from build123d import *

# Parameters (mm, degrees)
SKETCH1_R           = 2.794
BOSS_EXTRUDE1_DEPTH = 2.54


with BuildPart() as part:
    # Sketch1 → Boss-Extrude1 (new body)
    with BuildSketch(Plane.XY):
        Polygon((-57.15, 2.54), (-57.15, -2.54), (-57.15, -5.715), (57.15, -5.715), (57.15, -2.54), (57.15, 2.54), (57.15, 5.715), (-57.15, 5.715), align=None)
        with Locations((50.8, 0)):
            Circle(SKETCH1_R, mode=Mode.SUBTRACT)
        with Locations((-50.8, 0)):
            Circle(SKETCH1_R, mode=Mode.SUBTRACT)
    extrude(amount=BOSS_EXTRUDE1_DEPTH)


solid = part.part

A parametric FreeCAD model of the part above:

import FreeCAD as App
import Part
import Sketcher

V = App.Vector
Q = App.Units.Quantity


def add_polygon(sketch, points):
    """Adds a closed chain of lines whose ends are joined by coincident constraints."""
    first, n = sketch.GeometryCount, len(points)
    for a, b in zip(points, points[1:] + points[:1]):
        sketch.addGeometry(Part.LineSegment(App.Vector(*a, 0), App.Vector(*b, 0)), False)
    for i in range(n):
        sketch.addConstraint(Sketcher.Constraint("Coincident", first + i, 2, first + (i + 1) % n, 1))

doc = App.newDocument("Part")
body = doc.addObject("PartDesign::Body", "Body")

sketch1 = body.newObject("Sketcher::SketchObject", "Sketch")
sketch1.AttachmentSupport = (doc.getObject("XY_Plane"), [""])
sketch1.MapMode = "FlatFace"
add_polygon(sketch1, [(-57.1, -5.7), (57.1, -5.7), (57.1, 5.7), (-57.1, 5.7)])
sketch1.addGeometry(Part.Circle(V(-50.8, 0, 0), V(0, 0, 1), 2.8), False)
sketch1.addGeometry(Part.Circle(V(50.8, 0, 0), V(0, 0, 1), 2.8), False)
sketch1.addConstraint(Sketcher.Constraint("Horizontal", 0))
sketch1.addConstraint(Sketcher.Constraint("Vertical", 1))
sketch1.addConstraint(Sketcher.Constraint("Horizontal", 2))
sketch1.addConstraint(Sketcher.Constraint("Vertical", 3))
sketch1.addConstraint(Sketcher.Constraint("Equal", 4, 5))
sketch1.addConstraint(Sketcher.Constraint("Symmetric", 4, 3, 5, 3, -1, 1))
sketch1.addConstraint(Sketcher.Constraint("Symmetric", 0, 2, 2, 2, -1, 1))
sketch1.addConstraint(Sketcher.Constraint("PointOnObject", 4, 3, -1))
sketch1.addConstraint(Sketcher.Constraint("Diameter", 4, Q("0.22 in")))
sketch1.addConstraint(Sketcher.Constraint("DistanceX", 0, 1, 0, 2, Q("4.5 in")))
sketch1.addConstraint(Sketcher.Constraint("DistanceX", 4, 3, -1, 1, Q("2 in")))
sketch1.addConstraint(Sketcher.Constraint("DistanceY", 1, 1, 1, 2, Q("0.45 in")))
pad1 = body.newObject("PartDesign::Pad", "Pad")
pad1.Profile = sketch1
pad1.Length = Q("0.1 in")

doc.recompute()
